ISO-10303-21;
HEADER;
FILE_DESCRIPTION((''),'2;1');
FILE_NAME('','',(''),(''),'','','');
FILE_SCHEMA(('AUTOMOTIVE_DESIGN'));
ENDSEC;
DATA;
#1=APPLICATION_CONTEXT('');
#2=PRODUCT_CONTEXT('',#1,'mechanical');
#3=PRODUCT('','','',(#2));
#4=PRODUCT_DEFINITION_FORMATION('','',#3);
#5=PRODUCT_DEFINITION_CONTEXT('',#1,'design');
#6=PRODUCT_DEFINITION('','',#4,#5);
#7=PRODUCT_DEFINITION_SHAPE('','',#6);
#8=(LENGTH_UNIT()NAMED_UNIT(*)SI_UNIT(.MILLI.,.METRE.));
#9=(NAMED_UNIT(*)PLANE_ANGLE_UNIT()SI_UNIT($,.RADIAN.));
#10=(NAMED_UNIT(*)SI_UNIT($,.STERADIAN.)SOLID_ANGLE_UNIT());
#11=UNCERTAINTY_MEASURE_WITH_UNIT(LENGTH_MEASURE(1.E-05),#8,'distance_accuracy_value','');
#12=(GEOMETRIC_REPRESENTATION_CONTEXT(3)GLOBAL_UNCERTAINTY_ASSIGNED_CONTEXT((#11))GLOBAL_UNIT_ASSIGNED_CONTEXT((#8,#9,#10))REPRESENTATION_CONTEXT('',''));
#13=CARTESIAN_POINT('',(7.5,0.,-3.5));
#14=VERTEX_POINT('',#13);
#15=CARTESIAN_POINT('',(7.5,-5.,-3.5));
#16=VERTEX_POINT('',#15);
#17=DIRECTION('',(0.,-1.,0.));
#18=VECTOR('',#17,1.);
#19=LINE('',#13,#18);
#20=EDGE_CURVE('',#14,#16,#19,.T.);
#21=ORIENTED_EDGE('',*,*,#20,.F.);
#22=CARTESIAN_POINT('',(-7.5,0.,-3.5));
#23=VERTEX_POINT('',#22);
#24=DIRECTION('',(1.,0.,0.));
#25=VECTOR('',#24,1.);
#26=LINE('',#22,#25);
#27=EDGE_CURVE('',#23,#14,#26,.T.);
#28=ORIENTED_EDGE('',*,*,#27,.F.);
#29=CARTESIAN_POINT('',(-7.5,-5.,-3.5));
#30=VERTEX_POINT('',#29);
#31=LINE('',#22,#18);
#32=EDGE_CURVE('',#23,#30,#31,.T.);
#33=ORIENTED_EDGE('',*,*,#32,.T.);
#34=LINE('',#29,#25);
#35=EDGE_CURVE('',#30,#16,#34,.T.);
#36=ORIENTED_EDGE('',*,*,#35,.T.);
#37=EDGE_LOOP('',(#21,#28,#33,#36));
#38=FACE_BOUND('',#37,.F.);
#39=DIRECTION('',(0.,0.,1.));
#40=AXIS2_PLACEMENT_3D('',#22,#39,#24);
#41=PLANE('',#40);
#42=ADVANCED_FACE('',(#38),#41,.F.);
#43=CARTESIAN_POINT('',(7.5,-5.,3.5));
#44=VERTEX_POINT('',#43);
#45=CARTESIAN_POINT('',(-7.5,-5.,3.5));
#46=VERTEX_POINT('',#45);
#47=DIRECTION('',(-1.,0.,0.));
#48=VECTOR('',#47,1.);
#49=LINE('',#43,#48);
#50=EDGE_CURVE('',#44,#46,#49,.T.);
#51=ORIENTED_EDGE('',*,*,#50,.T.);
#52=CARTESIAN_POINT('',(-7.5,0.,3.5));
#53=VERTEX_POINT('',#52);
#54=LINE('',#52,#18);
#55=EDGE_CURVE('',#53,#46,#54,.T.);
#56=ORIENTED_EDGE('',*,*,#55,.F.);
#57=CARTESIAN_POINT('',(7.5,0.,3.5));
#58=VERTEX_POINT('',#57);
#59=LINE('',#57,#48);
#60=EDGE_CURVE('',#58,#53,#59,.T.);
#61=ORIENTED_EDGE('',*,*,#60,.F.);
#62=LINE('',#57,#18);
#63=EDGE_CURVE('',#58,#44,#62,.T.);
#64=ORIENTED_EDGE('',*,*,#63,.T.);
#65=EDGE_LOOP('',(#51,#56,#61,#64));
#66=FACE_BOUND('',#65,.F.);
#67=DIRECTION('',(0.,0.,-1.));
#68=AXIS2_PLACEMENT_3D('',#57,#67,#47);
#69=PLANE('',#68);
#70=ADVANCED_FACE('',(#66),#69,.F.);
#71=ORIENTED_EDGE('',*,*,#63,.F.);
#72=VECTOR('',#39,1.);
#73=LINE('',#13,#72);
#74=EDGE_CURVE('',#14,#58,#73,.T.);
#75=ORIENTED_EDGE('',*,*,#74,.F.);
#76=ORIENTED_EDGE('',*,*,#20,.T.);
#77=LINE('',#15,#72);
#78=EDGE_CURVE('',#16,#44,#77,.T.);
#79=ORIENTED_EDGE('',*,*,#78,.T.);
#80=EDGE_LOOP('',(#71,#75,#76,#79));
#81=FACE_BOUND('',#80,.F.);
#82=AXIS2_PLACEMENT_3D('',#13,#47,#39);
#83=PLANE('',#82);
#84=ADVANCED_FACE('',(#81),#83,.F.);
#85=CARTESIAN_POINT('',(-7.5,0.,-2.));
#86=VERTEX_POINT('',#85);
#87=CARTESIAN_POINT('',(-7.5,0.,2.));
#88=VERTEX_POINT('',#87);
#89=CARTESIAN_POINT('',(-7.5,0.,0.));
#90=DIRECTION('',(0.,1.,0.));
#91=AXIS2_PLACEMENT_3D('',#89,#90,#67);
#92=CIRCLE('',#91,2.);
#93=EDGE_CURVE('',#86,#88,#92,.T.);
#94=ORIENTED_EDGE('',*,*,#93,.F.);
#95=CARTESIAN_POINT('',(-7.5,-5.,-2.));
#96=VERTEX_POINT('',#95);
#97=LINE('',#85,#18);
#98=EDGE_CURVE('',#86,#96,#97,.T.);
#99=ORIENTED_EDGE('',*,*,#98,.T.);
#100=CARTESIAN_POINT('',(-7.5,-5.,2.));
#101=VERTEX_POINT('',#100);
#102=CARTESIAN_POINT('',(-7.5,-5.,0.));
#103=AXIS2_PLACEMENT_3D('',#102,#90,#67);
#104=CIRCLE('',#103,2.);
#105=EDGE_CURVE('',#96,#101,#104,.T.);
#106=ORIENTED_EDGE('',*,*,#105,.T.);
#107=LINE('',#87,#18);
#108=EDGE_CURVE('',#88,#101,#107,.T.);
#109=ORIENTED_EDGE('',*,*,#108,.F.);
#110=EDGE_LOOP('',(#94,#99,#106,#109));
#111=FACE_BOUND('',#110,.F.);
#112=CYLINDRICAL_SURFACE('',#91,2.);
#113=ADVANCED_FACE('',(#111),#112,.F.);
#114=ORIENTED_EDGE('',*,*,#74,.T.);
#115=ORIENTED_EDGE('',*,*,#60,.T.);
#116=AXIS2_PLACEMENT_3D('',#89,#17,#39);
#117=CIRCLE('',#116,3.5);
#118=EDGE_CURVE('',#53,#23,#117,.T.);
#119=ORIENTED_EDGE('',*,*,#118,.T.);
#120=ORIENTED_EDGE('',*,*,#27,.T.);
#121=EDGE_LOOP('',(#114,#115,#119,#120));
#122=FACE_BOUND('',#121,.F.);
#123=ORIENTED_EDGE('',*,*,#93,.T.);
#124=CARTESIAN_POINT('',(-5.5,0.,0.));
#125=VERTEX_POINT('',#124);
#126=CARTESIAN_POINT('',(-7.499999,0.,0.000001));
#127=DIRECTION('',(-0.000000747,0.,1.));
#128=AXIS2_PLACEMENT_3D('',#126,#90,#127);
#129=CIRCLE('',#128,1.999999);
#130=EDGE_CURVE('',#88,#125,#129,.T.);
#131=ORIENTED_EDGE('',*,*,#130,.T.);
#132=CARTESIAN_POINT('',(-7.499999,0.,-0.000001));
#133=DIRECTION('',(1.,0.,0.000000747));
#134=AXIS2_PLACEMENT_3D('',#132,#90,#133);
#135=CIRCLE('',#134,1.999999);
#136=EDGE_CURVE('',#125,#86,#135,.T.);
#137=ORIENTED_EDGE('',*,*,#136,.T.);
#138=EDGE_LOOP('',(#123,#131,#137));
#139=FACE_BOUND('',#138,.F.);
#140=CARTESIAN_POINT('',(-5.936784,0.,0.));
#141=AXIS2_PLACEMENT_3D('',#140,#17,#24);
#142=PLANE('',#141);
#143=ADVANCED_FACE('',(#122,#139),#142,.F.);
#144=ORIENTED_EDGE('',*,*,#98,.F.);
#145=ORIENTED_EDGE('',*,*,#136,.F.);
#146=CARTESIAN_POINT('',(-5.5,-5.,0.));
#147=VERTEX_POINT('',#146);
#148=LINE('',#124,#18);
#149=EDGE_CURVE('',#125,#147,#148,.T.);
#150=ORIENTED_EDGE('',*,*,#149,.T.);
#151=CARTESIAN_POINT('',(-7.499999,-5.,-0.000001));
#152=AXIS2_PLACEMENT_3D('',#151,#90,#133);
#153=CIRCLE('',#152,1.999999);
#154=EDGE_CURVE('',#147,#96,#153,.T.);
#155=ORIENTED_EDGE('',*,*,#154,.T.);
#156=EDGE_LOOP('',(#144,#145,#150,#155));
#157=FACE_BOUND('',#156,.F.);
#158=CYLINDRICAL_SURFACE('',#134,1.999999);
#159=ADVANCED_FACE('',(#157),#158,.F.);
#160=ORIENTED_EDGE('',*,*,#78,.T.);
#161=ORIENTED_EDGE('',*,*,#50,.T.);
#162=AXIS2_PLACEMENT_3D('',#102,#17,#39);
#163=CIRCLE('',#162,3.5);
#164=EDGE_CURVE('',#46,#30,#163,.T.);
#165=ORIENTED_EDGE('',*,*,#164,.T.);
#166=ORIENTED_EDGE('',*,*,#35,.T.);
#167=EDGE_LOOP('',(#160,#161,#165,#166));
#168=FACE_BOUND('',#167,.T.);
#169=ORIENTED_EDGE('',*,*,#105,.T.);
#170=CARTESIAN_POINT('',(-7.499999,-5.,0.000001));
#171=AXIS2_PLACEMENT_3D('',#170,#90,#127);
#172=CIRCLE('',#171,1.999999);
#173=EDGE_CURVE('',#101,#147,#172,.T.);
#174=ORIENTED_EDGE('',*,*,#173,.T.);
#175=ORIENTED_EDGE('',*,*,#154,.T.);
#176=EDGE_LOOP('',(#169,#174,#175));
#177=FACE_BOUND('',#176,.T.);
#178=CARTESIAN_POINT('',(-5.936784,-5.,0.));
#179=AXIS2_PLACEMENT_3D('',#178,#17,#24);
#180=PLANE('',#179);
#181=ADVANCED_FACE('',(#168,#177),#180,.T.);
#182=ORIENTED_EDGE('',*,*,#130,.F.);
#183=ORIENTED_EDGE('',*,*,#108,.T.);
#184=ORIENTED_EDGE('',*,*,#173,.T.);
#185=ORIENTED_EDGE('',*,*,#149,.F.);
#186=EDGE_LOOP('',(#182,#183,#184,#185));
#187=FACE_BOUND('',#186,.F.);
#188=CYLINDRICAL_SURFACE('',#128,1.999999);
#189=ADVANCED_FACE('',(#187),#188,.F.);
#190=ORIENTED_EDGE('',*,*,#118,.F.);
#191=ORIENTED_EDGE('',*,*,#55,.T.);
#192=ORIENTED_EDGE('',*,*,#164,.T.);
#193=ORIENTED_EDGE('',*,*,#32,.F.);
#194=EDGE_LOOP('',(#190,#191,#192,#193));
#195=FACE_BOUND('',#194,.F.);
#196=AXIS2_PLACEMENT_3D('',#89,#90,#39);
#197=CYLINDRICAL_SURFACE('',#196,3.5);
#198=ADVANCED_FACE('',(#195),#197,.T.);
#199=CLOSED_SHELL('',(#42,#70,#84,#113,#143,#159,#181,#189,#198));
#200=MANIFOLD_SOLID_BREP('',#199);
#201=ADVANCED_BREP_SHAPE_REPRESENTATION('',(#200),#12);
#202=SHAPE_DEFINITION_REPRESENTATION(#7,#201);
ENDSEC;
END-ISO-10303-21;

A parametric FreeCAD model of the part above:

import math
import FreeCAD as App
import Part
import Sketcher
Q = App.Units.Quantity

doc = App.newDocument("Part")
body = doc.addObject("PartDesign::Body", "Body")

# Sketch on XZ plane
sketch1 = body.newObject("Sketcher::SketchObject", "Sketch")
sketch1.AttachmentSupport = (doc.getObject("XZ_Plane"), [""])
sketch1.MapMode = "FlatFace"
sketch1.addGeometry([
    Part.ArcOfCircle(Part.Circle(App.Vector(-7.5, 0, 0), App.Vector(0, 0, 1), 3.5), math.radians(90), math.radians(270)),  # 0
    Part.LineSegment(App.Vector(-7.5, -3.5, 0), App.Vector(7.5, -3.5, 0)),  # 1
    Part.LineSegment(App.Vector(7.5, -3.5, 0), App.Vector(7.5, 3.5, 0)),  # 2
    Part.LineSegment(App.Vector(7.5, 3.5, 0), App.Vector(-7.5, 3.5, 0)),  # 3
    Part.ArcOfCircle(Part.Circle(App.Vector(-7.5, 0, 0), App.Vector(0, 0, 1), 2), math.radians(0), math.radians(90)),  # 4
    Part.ArcOfCircle(Part.Circle(App.Vector(-7.5, 0, 0), App.Vector(0, 0, 1), 2), math.radians(-90), math.radians(0)),  # 5
    Part.ArcOfCircle(Part.Circle(App.Vector(-7.5, 0, 0), App.Vector(0, 0, 1), 2), math.radians(90), math.radians(270)),  # 6
], False)
sketch1.addConstraint([
    Sketcher.Constraint("Tangent", 0, 2, 1, 1),
    Sketcher.Constraint("Coincident", 1, 2, 2, 1),
    Sketcher.Constraint("Coincident", 2, 2, 3, 1),
    Sketcher.Constraint("Tangent", 3, 2, 0, 1),
    Sketcher.Constraint("Tangent", 4, 1, 5, 2),
    Sketcher.Constraint("Tangent", 5, 1, 6, 2),
    Sketcher.Constraint("Tangent", 6, 1, 4, 2),
    Sketcher.Constraint("Horizontal", 1),
    Sketcher.Constraint("Vertical", 2),
    Sketcher.Constraint("Horizontal", 3),
    Sketcher.Constraint("Coincident", 4, 3, 0, 3),
    Sketcher.Constraint("Symmetric", 0, 2, 2, 2, -1, 1),
    Sketcher.Constraint("PointOnObject", 4, 1, -1),
    Sketcher.Constraint("Vertical", 3, 2, 5, 1),
    Sketcher.Constraint("Vertical", 5, 1, 6, 1),
    Sketcher.Constraint("Radius", 4, Q("1.999999 mm")),
    Sketcher.Constraint("Radius", 0, Q("3.5 mm")),
    Sketcher.Constraint("DistanceX", 1, 1, 1, 2, Q("15 mm")),
])
pad1 = body.newObject("PartDesign::Pad", "Pad")
pad1.Profile = sketch1
pad1.Length = 5

doc.recompute()
